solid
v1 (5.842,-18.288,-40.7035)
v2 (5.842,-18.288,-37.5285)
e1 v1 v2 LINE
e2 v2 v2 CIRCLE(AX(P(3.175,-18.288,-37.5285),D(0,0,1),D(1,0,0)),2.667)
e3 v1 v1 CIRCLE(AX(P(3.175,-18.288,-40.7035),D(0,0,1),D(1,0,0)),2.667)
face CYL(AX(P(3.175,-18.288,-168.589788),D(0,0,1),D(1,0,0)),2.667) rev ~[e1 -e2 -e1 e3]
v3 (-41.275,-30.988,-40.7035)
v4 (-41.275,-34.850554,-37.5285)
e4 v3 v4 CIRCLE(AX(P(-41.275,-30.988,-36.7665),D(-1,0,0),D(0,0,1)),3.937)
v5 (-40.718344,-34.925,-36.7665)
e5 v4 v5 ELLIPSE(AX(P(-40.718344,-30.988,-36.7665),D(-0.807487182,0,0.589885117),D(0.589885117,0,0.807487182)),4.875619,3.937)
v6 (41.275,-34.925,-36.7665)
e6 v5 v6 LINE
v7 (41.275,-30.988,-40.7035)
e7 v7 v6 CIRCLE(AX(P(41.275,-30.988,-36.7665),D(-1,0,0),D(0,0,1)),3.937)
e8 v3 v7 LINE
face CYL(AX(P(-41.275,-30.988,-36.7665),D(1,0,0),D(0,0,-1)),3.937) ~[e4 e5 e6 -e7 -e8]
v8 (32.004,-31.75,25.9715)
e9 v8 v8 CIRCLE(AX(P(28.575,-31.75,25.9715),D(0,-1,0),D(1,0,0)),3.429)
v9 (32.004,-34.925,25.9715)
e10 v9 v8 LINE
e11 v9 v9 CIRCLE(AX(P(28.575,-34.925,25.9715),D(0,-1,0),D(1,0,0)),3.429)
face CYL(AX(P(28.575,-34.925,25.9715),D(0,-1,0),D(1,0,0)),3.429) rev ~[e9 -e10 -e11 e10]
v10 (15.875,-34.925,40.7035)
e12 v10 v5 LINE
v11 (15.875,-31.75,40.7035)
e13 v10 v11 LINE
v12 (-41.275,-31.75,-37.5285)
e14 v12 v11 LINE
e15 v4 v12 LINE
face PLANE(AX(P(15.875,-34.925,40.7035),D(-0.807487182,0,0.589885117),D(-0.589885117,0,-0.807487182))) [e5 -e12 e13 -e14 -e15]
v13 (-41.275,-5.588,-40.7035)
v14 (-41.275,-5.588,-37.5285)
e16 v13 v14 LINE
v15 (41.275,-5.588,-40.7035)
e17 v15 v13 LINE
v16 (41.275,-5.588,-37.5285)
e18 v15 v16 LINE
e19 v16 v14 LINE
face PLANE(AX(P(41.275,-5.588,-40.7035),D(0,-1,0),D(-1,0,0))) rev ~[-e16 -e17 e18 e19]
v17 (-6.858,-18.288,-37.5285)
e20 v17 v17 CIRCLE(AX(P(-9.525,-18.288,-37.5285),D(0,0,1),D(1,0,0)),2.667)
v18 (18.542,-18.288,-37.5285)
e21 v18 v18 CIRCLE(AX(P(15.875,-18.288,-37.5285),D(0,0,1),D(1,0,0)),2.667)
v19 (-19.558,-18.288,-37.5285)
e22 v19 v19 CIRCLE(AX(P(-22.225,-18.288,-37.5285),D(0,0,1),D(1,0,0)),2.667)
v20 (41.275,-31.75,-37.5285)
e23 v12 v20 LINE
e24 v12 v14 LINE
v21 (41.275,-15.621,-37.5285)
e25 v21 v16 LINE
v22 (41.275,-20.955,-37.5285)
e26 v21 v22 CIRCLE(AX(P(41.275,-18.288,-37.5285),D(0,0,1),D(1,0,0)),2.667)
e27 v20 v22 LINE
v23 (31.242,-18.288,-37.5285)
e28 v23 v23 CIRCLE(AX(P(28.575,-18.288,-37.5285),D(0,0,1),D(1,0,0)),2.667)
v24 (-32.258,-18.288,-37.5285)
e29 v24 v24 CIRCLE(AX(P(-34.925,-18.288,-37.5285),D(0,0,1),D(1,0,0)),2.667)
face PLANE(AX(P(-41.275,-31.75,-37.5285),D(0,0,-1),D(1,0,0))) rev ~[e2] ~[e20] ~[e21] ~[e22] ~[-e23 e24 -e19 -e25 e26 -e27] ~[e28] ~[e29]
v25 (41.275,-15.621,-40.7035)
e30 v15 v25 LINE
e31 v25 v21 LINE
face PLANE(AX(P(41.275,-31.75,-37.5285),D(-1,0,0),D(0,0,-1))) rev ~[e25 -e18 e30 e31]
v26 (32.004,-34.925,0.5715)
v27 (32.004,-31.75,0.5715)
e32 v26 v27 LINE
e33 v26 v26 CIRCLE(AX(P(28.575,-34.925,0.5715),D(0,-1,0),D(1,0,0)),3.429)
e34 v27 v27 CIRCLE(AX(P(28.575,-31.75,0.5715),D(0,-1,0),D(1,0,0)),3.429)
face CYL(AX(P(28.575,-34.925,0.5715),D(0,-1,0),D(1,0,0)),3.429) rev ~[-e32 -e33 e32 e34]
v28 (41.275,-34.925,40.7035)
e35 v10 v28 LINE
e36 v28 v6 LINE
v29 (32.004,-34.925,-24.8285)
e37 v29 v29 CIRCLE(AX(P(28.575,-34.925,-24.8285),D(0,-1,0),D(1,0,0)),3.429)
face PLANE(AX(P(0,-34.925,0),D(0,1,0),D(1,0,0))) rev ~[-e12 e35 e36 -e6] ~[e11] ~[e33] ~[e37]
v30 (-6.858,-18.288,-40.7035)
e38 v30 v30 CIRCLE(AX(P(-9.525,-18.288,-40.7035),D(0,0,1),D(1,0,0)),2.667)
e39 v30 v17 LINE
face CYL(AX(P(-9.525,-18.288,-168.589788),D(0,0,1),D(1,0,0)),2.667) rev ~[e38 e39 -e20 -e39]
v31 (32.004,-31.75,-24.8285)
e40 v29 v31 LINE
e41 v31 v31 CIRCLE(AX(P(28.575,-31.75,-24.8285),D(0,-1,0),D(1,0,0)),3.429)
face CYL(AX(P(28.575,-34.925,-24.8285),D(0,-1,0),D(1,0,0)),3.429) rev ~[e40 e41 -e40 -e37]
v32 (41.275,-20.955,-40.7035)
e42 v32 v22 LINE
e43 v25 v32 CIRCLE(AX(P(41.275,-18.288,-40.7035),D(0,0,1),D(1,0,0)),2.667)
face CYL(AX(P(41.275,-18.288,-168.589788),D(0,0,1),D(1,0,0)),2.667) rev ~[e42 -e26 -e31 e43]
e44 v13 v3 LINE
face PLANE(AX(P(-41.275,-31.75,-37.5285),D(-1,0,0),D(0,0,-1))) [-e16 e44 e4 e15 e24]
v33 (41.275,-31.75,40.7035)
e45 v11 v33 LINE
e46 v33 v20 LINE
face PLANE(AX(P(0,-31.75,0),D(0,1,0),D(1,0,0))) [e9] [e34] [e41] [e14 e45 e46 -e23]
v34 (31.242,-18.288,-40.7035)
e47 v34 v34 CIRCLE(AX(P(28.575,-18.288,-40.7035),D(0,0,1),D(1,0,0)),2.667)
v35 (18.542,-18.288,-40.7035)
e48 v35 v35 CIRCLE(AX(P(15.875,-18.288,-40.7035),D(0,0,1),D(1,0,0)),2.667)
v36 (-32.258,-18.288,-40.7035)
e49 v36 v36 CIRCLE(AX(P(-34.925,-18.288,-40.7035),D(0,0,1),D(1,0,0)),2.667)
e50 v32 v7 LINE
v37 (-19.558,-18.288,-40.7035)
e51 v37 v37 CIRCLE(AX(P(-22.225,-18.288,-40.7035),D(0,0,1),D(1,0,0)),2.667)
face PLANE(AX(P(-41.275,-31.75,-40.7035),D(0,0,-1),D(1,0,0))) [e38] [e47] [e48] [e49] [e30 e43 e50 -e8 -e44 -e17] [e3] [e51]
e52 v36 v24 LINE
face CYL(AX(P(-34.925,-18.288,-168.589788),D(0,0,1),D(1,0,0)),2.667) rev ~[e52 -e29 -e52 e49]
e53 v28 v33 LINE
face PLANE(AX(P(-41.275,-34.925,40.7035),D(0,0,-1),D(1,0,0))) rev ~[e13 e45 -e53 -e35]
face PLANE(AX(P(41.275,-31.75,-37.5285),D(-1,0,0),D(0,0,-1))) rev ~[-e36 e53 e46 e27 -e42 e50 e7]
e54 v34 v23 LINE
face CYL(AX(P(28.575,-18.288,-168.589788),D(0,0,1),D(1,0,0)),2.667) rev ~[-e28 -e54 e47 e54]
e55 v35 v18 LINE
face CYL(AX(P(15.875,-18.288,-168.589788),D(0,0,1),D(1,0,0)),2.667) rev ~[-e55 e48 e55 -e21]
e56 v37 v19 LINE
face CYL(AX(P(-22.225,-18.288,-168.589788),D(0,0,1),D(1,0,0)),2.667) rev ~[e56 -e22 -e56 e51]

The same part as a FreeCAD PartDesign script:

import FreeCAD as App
import Part
import Sketcher

V = App.Vector
Q = App.Units.Quantity


def edges_at(feature, points):
    """Names of the edges that pass closest to the given points."""
    edges = feature.Shape.Edges
    near = lambda p: min(range(len(edges)), key=lambda i: edges[i].distToShape(Part.Vertex(*p))[0])
    return sorted({f"Edge{near(p) + 1}" for p in points})


def add_polygon(sketch, points):
    """Adds a closed chain of lines whose ends are joined by coincident constraints."""
    first, n = sketch.GeometryCount, len(points)
    for a, b in zip(points, points[1:] + points[:1]):
        sketch.addGeometry(Part.LineSegment(App.Vector(*a, 0), App.Vector(*b, 0)), False)
    for i in range(n):
        sketch.addConstraint(Sketcher.Constraint("Coincident", first + i, 2, first + (i + 1) % n, 1))

doc = App.newDocument("Part")
params = doc.addObject("Spreadsheet::Sheet", "Params")
for row, (alias, value) in enumerate([
    ("sketch1_width", "3.25 in"),
    ("sketch1_height", "3.205 in"),
    ("pad1_length", "0.125 in"),
    ("sketch2_width", "3.25 in"),
    ("sketch2_height", "0.125 in"),
    ("pad2_length", "2 in"),
    ("sketch3_diameter", "0.21 in"),
    ("hole_diameter", "0.21 in"),
    ("chamfer_size", "0.125 in"),
    ("fillet_radius", "0.155 in"),
    ("sketch4_diameter", "0.27 in"),
    ("sketch4_width", "2.25 in"),
    ("sketch4_height", "3.08 in"),
    ("sketch5_width", "3.25 in"),
    ("sketch5_height", "0.97 in"),
], start=1):
    params.set(f"A{row}", alias)
    params.set(f"B{row}", "=" + value)
    params.setAlias(f"B{row}", alias)

body = doc.addObject("PartDesign::Body", "Body")

# Sketch on XZ plane
sketch1 = doc.addObject("Sketcher::SketchObject", "Sketch")
body.addObject(sketch1)
sketch1.AttachmentSupport = (doc.XZ_Plane, [""])
sketch1.MapMode = "FlatFace"
sketch1.AttachmentOffset = App.Placement(V(0, 0, 1.375 * 25.4), App.Rotation())
add_polygon(sketch1, [(-41, -41), (-41, 41), (41, 41), (41, -41)])  # lines 0-3
sketch1.addConstraint(Sketcher.Constraint("Vertical", 0))
sketch1.addConstraint(Sketcher.Constraint("Horizontal", 1))
sketch1.addConstraint(Sketcher.Constraint("Vertical", 2))
sketch1.addConstraint(Sketcher.Constraint("Horizontal", 3))
sketch1.addConstraint(Sketcher.Constraint("Symmetric", 0, 2, 2, 2, -1, 1))
sketch1.addConstraint(Sketcher.Constraint("DistanceX", 1, 1, 1, 2, Q("3.25 in")))
sketch1.addConstraint(Sketcher.Constraint("DistanceY", 0, 1, 0, 2, Q("3.205 in")))
sketch1.setExpression("Constraints[9]", "Params.sketch1_width")
sketch1.setExpression("Constraints[10]", "Params.sketch1_height")
pad1 = doc.addObject("PartDesign::Pad", "Pad")
body.addObject(pad1)
pad1.Profile = sketch1
pad1.setExpression("Length", "Params.pad1_length")
pad1.Reversed = True

# Sketch on XZ plane
sketch2 = doc.addObject("Sketcher::SketchObject", "Sketch001")
body.addObject(sketch2)
sketch2.AttachmentSupport = (doc.XZ_Plane, [""])
sketch2.MapMode = "FlatFace"
sketch2.AttachmentOffset = App.Placement(V(0, 0, 1.25 * 25.4), App.Rotation())
add_polygon(sketch2, [(-41.3, -40.7), (-41.3, -37.5), (41.3, -37.5), (41.3, -40.7)])  # lines 0-3
sketch2.addConstraint(Sketcher.Constraint("Vertical", 0))
sketch2.addConstraint(Sketcher.Constraint("Horizontal", 1))
sketch2.addConstraint(Sketcher.Constraint("Vertical", 2))
sketch2.addConstraint(Sketcher.Constraint("Horizontal", 3))
sketch2.addConstraint(Sketcher.Constraint("DistanceX", 1, 1, 1, 2, Q("3.25 in")))
sketch2.addConstraint(Sketcher.Constraint("DistanceY", 0, 1, 0, 2, Q("0.125 in")))
sketch2.addConstraint(Sketcher.Constraint("DistanceX", 0, 2, -1, 1, Q("1.625 in")))
sketch2.addConstraint(Sketcher.Constraint("DistanceY", 0, 2, -1, 1, Q("1.4775 in")))
sketch2.setExpression("Constraints[8]", "Params.sketch2_width")
sketch2.setExpression("Constraints[9]", "Params.sketch2_height")
pad2 = doc.addObject("PartDesign::Pad", "Pad001")
body.addObject(pad2)
pad2.Profile = sketch2
pad2.setExpression("Length", "Params.pad2_length")
pad2.Reversed = True

# Sketch on XY plane
sketch3 = doc.addObject("Sketcher::SketchObject", "Sketch002")
body.addObject(sketch3)
sketch3.AttachmentSupport = (doc.XY_Plane, [""])
sketch3.MapMode = "FlatFace"
sketch3.AttachmentOffset = App.Placement(V(0, 0, -1.6025 * 25.4), App.Rotation())
sketch3.addGeometry(Part.Circle(V(-22.2, 7.1, 0), V(0, 0, 1), 2.7), False)
sketch3.addGeometry(Part.Circle(V(-9.5, 7.1, 0), V(0, 0, 1), 2.7), False)
sketch3.addGeometry(Part.Circle(V(3.2, 7.1, 0), V(0, 0, 1), 2.7), False)
sketch3.addGeometry(Part.Circle(V(15.9, 7.1, 0), V(0, 0, 1), 2.7), False)
sketch3.addGeometry(Part.Circle(V(28.6, 7.1, 0), V(0, 0, 1), 2.7), False)
sketch3.addGeometry(Part.Circle(V(-22.2, -18.3, 0), V(0, 0, 1), 2.7), False)
sketch3.addGeometry(Part.Circle(V(-9.5, -18.3, 0), V(0, 0, 1), 2.7), False)
sketch3.addGeometry(Part.Circle(V(3.2, -18.3, 0), V(0, 0, 1), 2.7), False)
sketch3.addGeometry(Part.Circle(V(15.9, -18.3, 0), V(0, 0, 1), 2.7), False)
sketch3.addGeometry(Part.Circle(V(28.6, -18.3, 0), V(0, 0, 1), 2.7), False)
sketch3.addGeometry(Part.Circle(V(-34.9, 7.1, 0), V(0, 0, 1), 2.7), False)
sketch3.addGeometry(Part.Circle(V(-34.9, -18.3, 0), V(0, 0, 1), 2.7), False)
sketch3.addGeometry(Part.Circle(V(41.3, 7.1, 0), V(0, 0, 1), 2.7), False)
sketch3.addGeometry(Part.Circle(V(41.3, -18.3, 0), V(0, 0, 1), 2.7), False)
sketch3.addConstraint(Sketcher.Constraint("Equal", 0, 1))
sketch3.addConstraint(Sketcher.Constraint("Equal", 1, 2))
sketch3.addConstraint(Sketcher.Constraint("Equal", 2, 3))
sketch3.addConstraint(Sketcher.Constraint("Equal", 3, 4))
sketch3.addConstraint(Sketcher.Constraint("Equal", 4, 5))
sketch3.addConstraint(Sketcher.Constraint("Equal", 5, 6))
sketch3.addConstraint(Sketcher.Constraint("Equal", 6, 7))
sketch3.addConstraint(Sketcher.Constraint("Equal", 7, 8))
sketch3.addConstraint(Sketcher.Constraint("Equal", 8, 9))
sketch3.addConstraint(Sketcher.Constraint("Equal", 9, 10))
sketch3.addConstraint(Sketcher.Constraint("Equal", 10, 11))
sketch3.addConstraint(Sketcher.Constraint("Equal", 11, 12))
sketch3.addConstraint(Sketcher.Constraint("Equal", 12, 13))
sketch3.addConstraint(Sketcher.Constraint("Horizontal", 0, 3, 1, 3))
sketch3.addConstraint(Sketcher.Constraint("Horizontal", 1, 3, 2, 3))
sketch3.addConstraint(Sketcher.Constraint("Horizontal", 2, 3, 3, 3))
sketch3.addConstraint(Sketcher.Constraint("Horizontal", 3, 3, 4, 3))
sketch3.addConstraint(Sketcher.Constraint("Horizontal", 5, 3, 6, 3))
sketch3.addConstraint(Sketcher.Constraint("Horizontal", 6, 3, 7, 3))
sketch3.addConstraint(Sketcher.Constraint("Horizontal", 7, 3, 8, 3))
sketch3.addConstraint(Sketcher.Constraint("Horizontal", 8, 3, 9, 3))
sketch3.addConstraint(Sketcher.Constraint("Horizontal", 4, 3, 10, 3))
sketch3.addConstraint(Sketcher.Constraint("Horizontal", 9, 3, 11, 3))
sketch3.addConstraint(Sketcher.Constraint("Horizontal", 10, 3, 12, 3))
sketch3.addConstraint(Sketcher.Constraint("Horizontal", 11, 3, 13, 3))
sketch3.addConstraint(Sketcher.Constraint("Vertical", 0, 3, 5, 3))
sketch3.addConstraint(Sketcher.Constraint("Vertical", 1, 3, 6, 3))
sketch3.addConstraint(Sketcher.Constraint("Vertical", 2, 3, 7, 3))
sketch3.addConstraint(Sketcher.Constraint("Vertical", 3, 3, 8, 3))
sketch3.addConstraint(Sketcher.Constraint("Vertical", 4, 3, 9, 3))
sketch3.addConstraint(Sketcher.Constraint("Vertical", 10, 3, 11, 3))
sketch3.addConstraint(Sketcher.Constraint("Vertical", 12, 3, 13, 3))
sketch3.addConstraint(Sketcher.Constraint("Diameter", 0, Q("0.21 in")))
sketch3.addConstraint(Sketcher.Constraint("DistanceX", 0, 3, 2, 3, Q("1 in")))
sketch3.addConstraint(Sketcher.Constraint("DistanceX", 1, 3, 3, 3, Q("1 in")))
sketch3.addConstraint(Sketcher.Constraint("DistanceX", 2, 3, 4, 3, Q("1 in")))
sketch3.addConstraint(Sketcher.Constraint("DistanceY", 5, 3, 0, 3, Q("1 in")))
sketch3.addConstraint(Sketcher.Constraint("DistanceX", 10, 3, 1, 3, Q("1 in")))
sketch3.addConstraint(Sketcher.Constraint("DistanceX", 3, 3, 12, 3, Q("1 in")))
sketch3.addConstraint(Sketcher.Constraint("DistanceX", 0, 3, 1, 3, Q("0.5 in")))
sketch3.addConstraint(Sketcher.Constraint("DistanceY", -1, 1, 0, 3, Q("0.28 in")))
sketch3.addConstraint(Sketcher.Constraint("DistanceX", 0, 3, -1, 1, Q("0.875 in")))
sketch3.setExpression("Constraints[32]", "Params.sketch3_diameter")
doc.recompute()
hole = doc.addObject("PartDesign::Hole", "Hole")
body.addObject(hole)
hole.Profile = sketch3
hole.ThreadType = "None"
hole.setExpression("Diameter", "Params.hole_diameter")
hole.DepthType = "ThroughAll"
hole.Reversed = True
doc.recompute()

chamfer = doc.addObject("PartDesign::Chamfer", "Chamfer")
body.addObject(chamfer)
chamfer.Base = (hole, edges_at(hole, [(-41.275, 19.05, -39.116)]))
chamfer.setExpression("Size", "Params.chamfer_size")
doc.recompute()

fillet = doc.addObject("PartDesign::Fillet", "Fillet")
body.addObject(fillet)
fillet.Base = (chamfer, edges_at(chamfer, [(0, -34.925, -40.703)]))
fillet.setExpression("Radius", "Params.fillet_radius")

# Sketch on XZ plane
sketch4 = doc.addObject("Sketcher::SketchObject", "Sketch003")
body.addObject(sketch4)
sketch4.AttachmentSupport = (doc.XZ_Plane, [""])
sketch4.MapMode = "FlatFace"
sketch4.AttachmentOffset = App.Placement(V(0, 0, 1.375 * 25.4), App.Rotation())
sketch4.addGeometry(Part.Circle(V(28.6, -24.8, 0), V(0, 0, 1), 3.4), False)  # 0
sketch4.addGeometry(Part.Circle(V(28.6, 0.6, 0), V(0, 0, 1), 3.4), False)  # 1
sketch4.addGeometry(Part.Circle(V(28.6, 26, 0), V(0, 0, 1), 3.4), False)  # 2
add_polygon(sketch4, [(-41.3, 40.7), (-41.3, -37.5), (15.9, 40.7)])  # lines 3-5
sketch4.addConstraint(Sketcher.Constraint("Vertical", 3))
sketch4.addConstraint(Sketcher.Constraint("Horizontal", 5))
sketch4.addConstraint(Sketcher.Constraint("Equal", 0, 1))
sketch4.addConstraint(Sketcher.Constraint("Equal", 1, 2))
sketch4.addConstraint(Sketcher.Constraint("Vertical", 0, 3, 1, 3))
sketch4.addConstraint(Sketcher.Constraint("Vertical", 1, 3, 2, 3))
sketch4.addConstraint(Sketcher.Constraint("Diameter", 0, Q("0.27 in")))
sketch4.addConstraint(Sketcher.Constraint("DistanceY", 0, 3, 1, 3, Q("1 in")))
sketch4.addConstraint(Sketcher.Constraint("DistanceY", 1, 3, 2, 3, Q("1 in")))
sketch4.addConstraint(Sketcher.Constraint("DistanceX", 5, 2, 5, 1, Q("2.25 in")))
sketch4.addConstraint(Sketcher.Constraint("DistanceY", 3, 2, 3, 1, Q("3.08 in")))
sketch4.addConstraint(Sketcher.Constraint("DistanceY", 3, 2, 0, 3, Q("0.5 in")))
sketch4.addConstraint(Sketcher.Constraint("DistanceX", 4, 2, 2, 3, Q("0.5 in")))
sketch4.addConstraint(Sketcher.Constraint("DistanceX", -1, 1, 0, 3, Q("1.125 in")))
sketch4.addConstraint(Sketcher.Constraint("DistanceY", 0, 3, -1, 1, Q("0.9775 in")))
sketch4.setExpression("Constraints[9]", "Params.sketch4_diameter")
sketch4.setExpression("Constraints[12]", "Params.sketch4_width")
sketch4.setExpression("Constraints[13]", "Params.sketch4_height")
pocket1 = doc.addObject("PartDesign::Pocket", "Pocket")
body.addObject(pocket1)
pocket1.Profile = sketch4
pocket1.Type = "ThroughAll"

# Sketch on XY plane
sketch5 = doc.addObject("Sketcher::SketchObject", "Sketch004")
body.addObject(sketch5)
sketch5.AttachmentSupport = (doc.XY_Plane, [""])
sketch5.MapMode = "FlatFace"
sketch5.AttachmentOffset = App.Placement(V(0, 0, -1.6025 * 25.4), App.Rotation())
add_polygon(sketch5, [(41, 19), (41, -6), (-41, -6), (-41, 19)])  # lines 0-3
sketch5.addConstraint(Sketcher.Constraint("Vertical", 0))
sketch5.addConstraint(Sketcher.Constraint("Horizontal", 1))
sketch5.addConstraint(Sketcher.Constraint("Vertical", 2))
sketch5.addConstraint(Sketcher.Constraint("Horizontal", 3))
sketch5.addConstraint(Sketcher.Constraint("DistanceX", 1, 2, 1, 1, Q("3.25 in")))
sketch5.addConstraint(Sketcher.Constraint("DistanceY", 0, 2, 0, 1, Q("0.97 in")))
sketch5.addConstraint(Sketcher.Constraint("DistanceY", 0, 2, -1, 1, Q("0.22 in")))
sketch5.addConstraint(Sketcher.Constraint("DistanceX", -1, 1, 0, 2, Q("1.625 in")))
sketch5.setExpression("Constraints[8]", "Params.sketch5_width")
sketch5.setExpression("Constraints[9]", "Params.sketch5_height")
pocket2 = doc.addObject("PartDesign::Pocket", "Pocket001")
body.addObject(pocket2)
pocket2.Profile = sketch5
pocket2.Type = "ThroughAll"
pocket2.Reversed = True

doc.recompute()
